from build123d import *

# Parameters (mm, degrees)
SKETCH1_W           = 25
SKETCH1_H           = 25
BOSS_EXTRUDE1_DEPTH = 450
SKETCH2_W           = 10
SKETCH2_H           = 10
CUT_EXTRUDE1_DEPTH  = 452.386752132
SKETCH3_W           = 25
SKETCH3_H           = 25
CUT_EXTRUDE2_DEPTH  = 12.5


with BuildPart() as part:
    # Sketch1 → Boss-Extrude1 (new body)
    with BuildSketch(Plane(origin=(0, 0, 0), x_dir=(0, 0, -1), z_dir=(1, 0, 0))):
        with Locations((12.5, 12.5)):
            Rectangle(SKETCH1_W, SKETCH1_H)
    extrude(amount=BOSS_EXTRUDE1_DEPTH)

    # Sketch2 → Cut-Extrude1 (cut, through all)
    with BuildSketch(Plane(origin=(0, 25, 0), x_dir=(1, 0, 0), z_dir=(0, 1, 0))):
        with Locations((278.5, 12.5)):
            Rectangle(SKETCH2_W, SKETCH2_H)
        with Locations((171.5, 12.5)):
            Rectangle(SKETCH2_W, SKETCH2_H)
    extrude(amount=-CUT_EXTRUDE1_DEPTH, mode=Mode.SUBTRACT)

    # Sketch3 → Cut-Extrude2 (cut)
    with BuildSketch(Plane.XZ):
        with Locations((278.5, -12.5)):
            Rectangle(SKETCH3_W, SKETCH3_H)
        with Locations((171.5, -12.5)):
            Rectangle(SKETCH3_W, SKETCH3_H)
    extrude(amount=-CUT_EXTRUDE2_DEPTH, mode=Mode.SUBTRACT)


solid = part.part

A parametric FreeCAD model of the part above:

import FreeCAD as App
import Part
import Sketcher

V = App.Vector
Q = App.Units.Quantity


def add_polygon(sketch, points):
    """Adds a closed chain of lines whose ends are joined by coincident constraints."""
    first, n = sketch.GeometryCount, len(points)
    for a, b in zip(points, points[1:] + points[:1]):
        sketch.addGeometry(Part.LineSegment(App.Vector(*a, 0), App.Vector(*b, 0)), False)
    for i in range(n):
        sketch.addConstraint(Sketcher.Constraint("Coincident", first + i, 2, first + (i + 1) % n, 1))

doc = App.newDocument("Part")
body = doc.addObject("PartDesign::Body", "Body")

# Sketch on YZ plane
sketch1 = body.newObject("Sketcher::SketchObject", "Sketch")
sketch1.AttachmentSupport = (doc.getObject("YZ_Plane"), [""])
sketch1.MapMode = "FlatFace"
add_polygon(sketch1, [(25, 0), (0, 0), (0, -25), (25, -25)])  # lines 0-3
sketch1.addConstraint([
    Sketcher.Constraint("Horizontal", 0),
    Sketcher.Constraint("Vertical", 1),
    Sketcher.Constraint("Horizontal", 2),
    Sketcher.Constraint("Vertical", 3),
    Sketcher.Constraint("Coincident", 0, 2, -1, 1),
    Sketcher.Constraint("Equal", 2, 1),
    Sketcher.Constraint("DistanceX", 0, 2, 0, 1, Q("25 mm")),
])
pad1 = body.newObject("PartDesign::Pad", "Pad")
pad1.Profile = sketch1
pad1.Length = 450

# Sketch on XZ plane
sketch2 = body.newObject("Sketcher::SketchObject", "Sketch001")
sketch2.AttachmentSupport = (doc.getObject("XZ_Plane"), [""])
sketch2.MapMode = "FlatFace"
sketch2.AttachmentOffset = App.Placement(V(0, 0, -25), App.Rotation())
add_polygon(sketch2, [(274, -18), (274, -8), (284, -8), (284, -18)])  # lines 0-3
add_polygon(sketch2, [(166, -18), (166, -8), (176, -8), (176, -18)])  # lines 4-7
sketch2.addConstraint([
    Sketcher.Constraint("Vertical", 0),
    Sketcher.Constraint("Horizontal", 1),
    Sketcher.Constraint("Vertical", 2),
    Sketcher.Constraint("Horizontal", 3),
    Sketcher.Constraint("Vertical", 4),
    Sketcher.Constraint("Horizontal", 5),
    Sketcher.Constraint("Vertical", 6),
    Sketcher.Constraint("Horizontal", 7),
    Sketcher.Constraint("Horizontal", 1, 2, 4, 2),
    Sketcher.Constraint("Horizontal", 3, 2, 6, 2),
    Sketcher.Constraint("Equal", 3, 5),
    Sketcher.Constraint("Equal", 7, 0),
    Sketcher.Constraint("DistanceX", 1, 1, 1, 2, Q("10 mm")),
    Sketcher.Constraint("DistanceX", 4, 2, 0, 2, Q("107 mm")),
    Sketcher.Constraint("DistanceX", -1, 1, 0, 2, Q("273.5 mm")),
    Sketcher.Constraint("DistanceY", 0, 2, -1, 1, Q("7.5 mm")),
])
pocket1 = body.newObject("PartDesign::Pocket", "Pocket")
pocket1.Profile = sketch2
pocket1.Type = "ThroughAll"
pocket1.Reversed = True

# Sketch on XZ plane
sketch3 = body.newObject("Sketcher::SketchObject", "Sketch002")
sketch3.AttachmentSupport = (doc.getObject("XZ_Plane"), [""])
sketch3.MapMode = "FlatFace"
add_polygon(sketch3, [(266, 0), (266, -25), (291, -25), (291, 0)])  # lines 0-3
add_polygon(sketch3, [(159, 0), (159, -25), (184, -25), (184, 0)])  # lines 4-7
sketch3.addConstraint([
    Sketcher.Constraint("Vertical", 0),
    Sketcher.Constraint("Horizontal", 1),
    Sketcher.Constraint("Vertical", 2),
    Sketcher.Constraint("Horizontal", 3),
    Sketcher.Constraint("Vertical", 4),
    Sketcher.Constraint("Horizontal", 5),
    Sketcher.Constraint("Vertical", 6),
    Sketcher.Constraint("Horizontal", 7),
    Sketcher.Constraint("PointOnObject", 2, 2, -1),
    Sketcher.Constraint("PointOnObject", 6, 2, -1),
    Sketcher.Constraint("Horizontal", 1, 2, 4, 2),
    Sketcher.Constraint("Equal", 3, 5),
    Sketcher.Constraint("Equal", 7, 0),
    Sketcher.Constraint("DistanceX", 1, 1, 1, 2, Q("25 mm")),
    Sketcher.Constraint("DistanceX", -1, 1, 0, 2, Q("266 mm")),
    Sketcher.Constraint("DistanceX", -1, 1, 4, 2, Q("159 mm")),
])
pocket2 = body.newObject("PartDesign::Pocket", "Pocket001")
pocket2.Profile = sketch3
pocket2.Length = 12.5

doc.recompute()
